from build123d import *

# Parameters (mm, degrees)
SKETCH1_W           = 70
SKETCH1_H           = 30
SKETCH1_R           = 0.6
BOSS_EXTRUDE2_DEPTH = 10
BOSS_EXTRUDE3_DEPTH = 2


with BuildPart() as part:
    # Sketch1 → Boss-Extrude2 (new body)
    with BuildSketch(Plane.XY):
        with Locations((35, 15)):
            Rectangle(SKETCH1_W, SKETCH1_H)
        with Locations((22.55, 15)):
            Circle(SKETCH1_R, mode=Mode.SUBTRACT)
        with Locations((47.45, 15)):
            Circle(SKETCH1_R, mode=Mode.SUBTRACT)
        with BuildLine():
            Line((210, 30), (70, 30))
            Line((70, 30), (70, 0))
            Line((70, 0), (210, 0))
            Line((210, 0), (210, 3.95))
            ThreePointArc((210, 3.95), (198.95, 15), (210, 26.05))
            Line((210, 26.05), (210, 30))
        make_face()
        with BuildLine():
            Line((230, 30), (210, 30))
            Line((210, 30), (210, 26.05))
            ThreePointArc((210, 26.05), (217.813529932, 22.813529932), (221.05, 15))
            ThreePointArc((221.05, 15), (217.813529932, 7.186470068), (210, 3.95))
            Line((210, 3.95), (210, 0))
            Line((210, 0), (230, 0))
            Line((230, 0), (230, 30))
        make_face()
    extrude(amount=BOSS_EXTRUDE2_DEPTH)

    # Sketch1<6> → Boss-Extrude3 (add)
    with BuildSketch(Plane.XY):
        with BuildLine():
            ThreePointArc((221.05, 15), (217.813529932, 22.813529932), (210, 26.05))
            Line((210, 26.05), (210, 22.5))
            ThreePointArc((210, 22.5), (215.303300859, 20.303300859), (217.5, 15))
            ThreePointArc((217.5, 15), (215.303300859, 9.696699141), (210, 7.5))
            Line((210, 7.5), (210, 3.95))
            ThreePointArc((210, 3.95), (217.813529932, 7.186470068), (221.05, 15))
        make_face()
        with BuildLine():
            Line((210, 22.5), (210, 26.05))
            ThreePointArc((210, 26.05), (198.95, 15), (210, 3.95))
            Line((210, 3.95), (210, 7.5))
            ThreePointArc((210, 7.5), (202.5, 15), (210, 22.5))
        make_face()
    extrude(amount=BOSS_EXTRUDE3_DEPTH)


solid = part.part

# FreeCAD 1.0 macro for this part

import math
import FreeCAD as App
import Part
import Sketcher

V = App.Vector
Q = App.Units.Quantity


def add_polygon(sketch, points):
    """Adds a closed chain of lines whose ends are joined by coincident constraints."""
    first, n = sketch.GeometryCount, len(points)
    for a, b in zip(points, points[1:] + points[:1]):
        sketch.addGeometry(Part.LineSegment(App.Vector(*a, 0), App.Vector(*b, 0)), False)
    for i in range(n):
        sketch.addConstraint(Sketcher.Constraint("Coincident", first + i, 2, first + (i + 1) % n, 1))

doc = App.newDocument("Part")
body = doc.addObject("PartDesign::Body", "Body")

# Sketch on XY plane
sketch1 = body.newObject("Sketcher::SketchObject", "Sketch")
sketch1.AttachmentSupport = (doc.getObject("XY_Plane"), [""])
sketch1.MapMode = "FlatFace"
add_polygon(sketch1, [(0, 30), (0, 0), (230, 0), (230, 30)])  # lines 0-3
sketch1.addGeometry(Part.ArcOfCircle(Part.Circle(V(210, 15, 0), V(0, 0, 1), 11.05), math.radians(90), math.radians(270)), False)  # 4
sketch1.addGeometry(Part.ArcOfCircle(Part.Circle(V(210, 15, 0), V(0, 0, 1), 11.05), math.radians(0), math.radians(90)), False)  # 5
sketch1.addGeometry(Part.ArcOfCircle(Part.Circle(V(210, 15, 0), V(0, 0, 1), 11.05), math.radians(-90), math.radians(0)), False)  # 6
sketch1.addGeometry(Part.Circle(V(22.55, 15, 0), V(0, 0, 1), 0.6), False)  # 7
sketch1.addGeometry(Part.Circle(V(47.45, 15, 0), V(0, 0, 1), 0.6), False)  # 8
sketch1.addConstraint(Sketcher.Constraint("Tangent", 4, 1, 5, 2))
sketch1.addConstraint(Sketcher.Constraint("Tangent", 5, 1, 6, 2))
sketch1.addConstraint(Sketcher.Constraint("Tangent", 6, 1, 4, 2))
sketch1.addConstraint(Sketcher.Constraint("Vertical", 0))
sketch1.addConstraint(Sketcher.Constraint("Horizontal", 1))
sketch1.addConstraint(Sketcher.Constraint("Vertical", 2))
sketch1.addConstraint(Sketcher.Constraint("Horizontal", 3))
sketch1.addConstraint(Sketcher.Constraint("Coincident", 0, 2, -1, 1))
sketch1.addConstraint(Sketcher.Constraint("Equal", 7, 8))
sketch1.addConstraint(Sketcher.Constraint("Horizontal", 6, 3, 7, 3))
sketch1.addConstraint(Sketcher.Constraint("Horizontal", 7, 3, 8, 3))
sketch1.addConstraint(Sketcher.Constraint("Horizontal", 8, 3, 5, 1))
sketch1.addConstraint(Sketcher.Constraint("Vertical", 6, 3, 4, 1))
sketch1.addConstraint(Sketcher.Constraint("Vertical", 4, 1, 6, 1))
sketch1.addConstraint(Sketcher.Constraint("Diameter", 7, Q("1.2 mm")))
sketch1.addConstraint(Sketcher.Constraint("DistanceX", 1, 1, 1, 2, Q("230 mm")))
sketch1.addConstraint(Sketcher.Constraint("DistanceY", 0, 2, 0, 1, Q("30 mm")))
sketch1.addConstraint(Sketcher.Constraint("Radius", 4, Q("11.05 mm")))
sketch1.addConstraint(Sketcher.Constraint("DistanceX", -1, 1, 4, 3, Q("210 mm")))
sketch1.addConstraint(Sketcher.Constraint("DistanceY", -1, 1, 4, 3, Q("15 mm")))
sketch1.addConstraint(Sketcher.Constraint("DistanceX", 7, 3, 8, 3, Q("24.9 mm")))
sketch1.addConstraint(Sketcher.Constraint("DistanceX", -1, 1, 7, 3, Q("22.55 mm")))
pad1 = body.newObject("PartDesign::Pad", "Pad")
pad1.Profile = sketch1
pad1.Length = 10

# Sketch on XY plane
sketch2 = body.newObject("Sketcher::SketchObject", "Sketch001")
sketch2.AttachmentSupport = (doc.getObject("XY_Plane"), [""])
sketch2.MapMode = "FlatFace"
sketch2.addGeometry(Part.ArcOfCircle(Part.Circle(V(210, 15, 0), V(0, 0, 1), 11.05), math.radians(0), math.radians(90)), False)
sketch2.addGeometry(Part.ArcOfCircle(Part.Circle(V(210, 15, 0), V(0, 0, 1), 11.05), math.radians(90), math.radians(270)), False)
sketch2.addGeometry(Part.ArcOfCircle(Part.Circle(V(210, 15, 0), V(0, 0, 1), 11.05), math.radians(-90), math.radians(0)), False)
sketch2.addGeometry(Part.ArcOfCircle(Part.Circle(V(210, 15, 0), V(0, 0, 1), 7.5), math.radians(-90), math.radians(0)), False)
sketch2.addGeometry(Part.ArcOfCircle(Part.Circle(V(210, 15, 0), V(0, 0, 1), 7.5), math.radians(90), math.radians(270)), False)
sketch2.addGeometry(Part.ArcOfCircle(Part.Circle(V(210, 15, 0), V(0, 0, 1), 7.5), math.radians(0), math.radians(90)), False)
sketch2.addConstraint(Sketcher.Constraint("Tangent", 0, 2, 1, 1))
sketch2.addConstraint(Sketcher.Constraint("Tangent", 1, 2, 2, 1))
sketch2.addConstraint(Sketcher.Constraint("Tangent", 2, 2, 0, 1))
sketch2.addConstraint(Sketcher.Constraint("Tangent", 3, 1, 4, 2))
sketch2.addConstraint(Sketcher.Constraint("Tangent", 4, 1, 5, 2))
sketch2.addConstraint(Sketcher.Constraint("Tangent", 5, 1, 3, 2))
sketch2.addConstraint(Sketcher.Constraint("Coincident", 3, 3, 0, 3))
sketch2.addConstraint(Sketcher.Constraint("Horizontal", 5, 3, 2, 2))
sketch2.addConstraint(Sketcher.Constraint("Horizontal", 2, 2, 5, 1))
sketch2.addConstraint(Sketcher.Constraint("Vertical", 5, 3, 0, 2))
sketch2.addConstraint(Sketcher.Constraint("Vertical", 0, 2, 1, 2))
sketch2.addConstraint(Sketcher.Constraint("Vertical", 1, 2, 3, 1))
sketch2.addConstraint(Sketcher.Constraint("Vertical", 3, 1, 4, 1))
sketch2.addConstraint(Sketcher.Constraint("Radius", 3, Q("7.5 mm")))
sketch2.addConstraint(Sketcher.Constraint("Radius", 0, Q("11.05 mm")))
sketch2.addConstraint(Sketcher.Constraint("DistanceX", -1, 1, 0, 3, Q("210 mm")))
sketch2.addConstraint(Sketcher.Constraint("DistanceY", -1, 1, 0, 3, Q("15 mm")))
pad2 = body.newObject("PartDesign::Pad", "Pad001")
pad2.Profile = sketch2
pad2.Length = 2

doc.recompute()
